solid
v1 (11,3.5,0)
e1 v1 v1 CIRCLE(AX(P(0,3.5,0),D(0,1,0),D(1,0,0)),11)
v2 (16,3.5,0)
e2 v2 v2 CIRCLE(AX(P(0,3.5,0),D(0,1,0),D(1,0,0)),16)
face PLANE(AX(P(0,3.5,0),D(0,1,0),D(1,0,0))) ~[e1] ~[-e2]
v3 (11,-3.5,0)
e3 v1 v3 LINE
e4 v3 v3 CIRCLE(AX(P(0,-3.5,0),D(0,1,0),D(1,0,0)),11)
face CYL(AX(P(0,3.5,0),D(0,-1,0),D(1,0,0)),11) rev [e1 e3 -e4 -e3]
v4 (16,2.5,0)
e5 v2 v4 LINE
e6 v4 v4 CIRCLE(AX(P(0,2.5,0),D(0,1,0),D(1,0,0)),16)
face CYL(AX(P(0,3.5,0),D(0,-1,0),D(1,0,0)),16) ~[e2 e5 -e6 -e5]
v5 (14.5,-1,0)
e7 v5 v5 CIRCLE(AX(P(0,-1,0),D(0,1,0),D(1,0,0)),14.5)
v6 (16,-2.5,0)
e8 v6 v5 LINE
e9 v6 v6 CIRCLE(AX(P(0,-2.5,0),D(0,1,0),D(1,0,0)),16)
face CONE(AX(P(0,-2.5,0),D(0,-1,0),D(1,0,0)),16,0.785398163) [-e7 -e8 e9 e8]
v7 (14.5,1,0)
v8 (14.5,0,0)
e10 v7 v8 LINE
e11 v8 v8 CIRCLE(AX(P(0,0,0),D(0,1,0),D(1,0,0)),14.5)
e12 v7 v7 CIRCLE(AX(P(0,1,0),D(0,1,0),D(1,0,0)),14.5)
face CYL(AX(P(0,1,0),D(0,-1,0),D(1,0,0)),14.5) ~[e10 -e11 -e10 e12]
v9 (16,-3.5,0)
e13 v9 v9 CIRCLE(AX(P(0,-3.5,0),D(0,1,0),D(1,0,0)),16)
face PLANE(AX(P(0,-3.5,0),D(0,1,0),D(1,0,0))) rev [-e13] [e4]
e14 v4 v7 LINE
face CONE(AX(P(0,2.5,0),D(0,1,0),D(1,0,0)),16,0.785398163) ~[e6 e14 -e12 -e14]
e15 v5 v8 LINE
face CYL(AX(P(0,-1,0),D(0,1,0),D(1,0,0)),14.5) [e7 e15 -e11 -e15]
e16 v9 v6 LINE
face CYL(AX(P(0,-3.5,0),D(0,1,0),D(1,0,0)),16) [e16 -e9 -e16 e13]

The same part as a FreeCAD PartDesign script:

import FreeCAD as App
import Part
import Sketcher

V = App.Vector
Q = App.Units.Quantity

doc = App.newDocument("Part")
body = doc.addObject("PartDesign::Body", "Body")

sketch1 = body.newObject("Sketcher::SketchObject", "Sketch")
sketch1.AttachmentSupport = (doc.getObject("XY_Plane"), [""])
sketch1.MapMode = "FlatFace"
sketch1.addGeometry([
    Part.LineSegment(V(16, 3.5, 0), V(11, 3.5, 0)),
    Part.LineSegment(V(11, 3.5, 0), V(11, -3.5, 0)),
    Part.LineSegment(V(11, -3.5, 0), V(16, -3.5, 0)),
    Part.LineSegment(V(16, -3.5, 0), V(16, -2.5, 0)),
    Part.LineSegment(V(16, -2.5, 0), V(14.5, -1, 0)),
    Part.LineSegment(V(14.5, -1, 0), V(14.5, 1, 0)),
    Part.LineSegment(V(14.5, 1, 0), V(16, 2.5, 0)),
    Part.LineSegment(V(16, 2.5, 0), V(16, 3.5, 0)),
], False)
sketch1.addConstraint([
    Sketcher.Constraint("Coincident", 0, 2, 1, 1),
    Sketcher.Constraint("Coincident", 1, 2, 2, 1),
    Sketcher.Constraint("Coincident", 2, 2, 3, 1),
    Sketcher.Constraint("Coincident", 3, 2, 4, 1),
    Sketcher.Constraint("Coincident", 4, 2, 5, 1),
    Sketcher.Constraint("Coincident", 5, 2, 6, 1),
    Sketcher.Constraint("Coincident", 6, 2, 7, 1),
    Sketcher.Constraint("Coincident", 7, 2, 0, 1),
    Sketcher.Constraint("Horizontal", 0),
    Sketcher.Constraint("Vertical", 1),
    Sketcher.Constraint("Horizontal", 2),
    Sketcher.Constraint("Vertical", 3),
    Sketcher.Constraint("Vertical", 5),
    Sketcher.Constraint("Vertical", 7),
    Sketcher.Constraint("Symmetric", 3, 2, 6, 2, -1),
    Sketcher.Constraint("Perpendicular", 4, 6),
    Sketcher.Constraint("Equal", 3, 7),
    Sketcher.Constraint("Equal", 4, 6),
    Sketcher.Constraint("DistanceX", 0, 2, 0, 1, Q("5 mm")),
    Sketcher.Constraint("DistanceY", 1, 2, 1, 1, Q("7 mm")),
    Sketcher.Constraint("DistanceY", 3, 1, 3, 2, Q("1 mm")),
    Sketcher.Constraint("DistanceX", -1, 1, 0, 2, Q("11 mm")),
    Sketcher.Constraint("DistanceY", 4, 2, -1, 1, Q("1 mm")),
])
revolution = body.newObject("PartDesign::Revolution", "Revolution")
revolution.Profile = sketch1
revolution.ReferenceAxis = (sketch1, ["V_Axis"])
revolution.Angle = 360

doc.recompute()
